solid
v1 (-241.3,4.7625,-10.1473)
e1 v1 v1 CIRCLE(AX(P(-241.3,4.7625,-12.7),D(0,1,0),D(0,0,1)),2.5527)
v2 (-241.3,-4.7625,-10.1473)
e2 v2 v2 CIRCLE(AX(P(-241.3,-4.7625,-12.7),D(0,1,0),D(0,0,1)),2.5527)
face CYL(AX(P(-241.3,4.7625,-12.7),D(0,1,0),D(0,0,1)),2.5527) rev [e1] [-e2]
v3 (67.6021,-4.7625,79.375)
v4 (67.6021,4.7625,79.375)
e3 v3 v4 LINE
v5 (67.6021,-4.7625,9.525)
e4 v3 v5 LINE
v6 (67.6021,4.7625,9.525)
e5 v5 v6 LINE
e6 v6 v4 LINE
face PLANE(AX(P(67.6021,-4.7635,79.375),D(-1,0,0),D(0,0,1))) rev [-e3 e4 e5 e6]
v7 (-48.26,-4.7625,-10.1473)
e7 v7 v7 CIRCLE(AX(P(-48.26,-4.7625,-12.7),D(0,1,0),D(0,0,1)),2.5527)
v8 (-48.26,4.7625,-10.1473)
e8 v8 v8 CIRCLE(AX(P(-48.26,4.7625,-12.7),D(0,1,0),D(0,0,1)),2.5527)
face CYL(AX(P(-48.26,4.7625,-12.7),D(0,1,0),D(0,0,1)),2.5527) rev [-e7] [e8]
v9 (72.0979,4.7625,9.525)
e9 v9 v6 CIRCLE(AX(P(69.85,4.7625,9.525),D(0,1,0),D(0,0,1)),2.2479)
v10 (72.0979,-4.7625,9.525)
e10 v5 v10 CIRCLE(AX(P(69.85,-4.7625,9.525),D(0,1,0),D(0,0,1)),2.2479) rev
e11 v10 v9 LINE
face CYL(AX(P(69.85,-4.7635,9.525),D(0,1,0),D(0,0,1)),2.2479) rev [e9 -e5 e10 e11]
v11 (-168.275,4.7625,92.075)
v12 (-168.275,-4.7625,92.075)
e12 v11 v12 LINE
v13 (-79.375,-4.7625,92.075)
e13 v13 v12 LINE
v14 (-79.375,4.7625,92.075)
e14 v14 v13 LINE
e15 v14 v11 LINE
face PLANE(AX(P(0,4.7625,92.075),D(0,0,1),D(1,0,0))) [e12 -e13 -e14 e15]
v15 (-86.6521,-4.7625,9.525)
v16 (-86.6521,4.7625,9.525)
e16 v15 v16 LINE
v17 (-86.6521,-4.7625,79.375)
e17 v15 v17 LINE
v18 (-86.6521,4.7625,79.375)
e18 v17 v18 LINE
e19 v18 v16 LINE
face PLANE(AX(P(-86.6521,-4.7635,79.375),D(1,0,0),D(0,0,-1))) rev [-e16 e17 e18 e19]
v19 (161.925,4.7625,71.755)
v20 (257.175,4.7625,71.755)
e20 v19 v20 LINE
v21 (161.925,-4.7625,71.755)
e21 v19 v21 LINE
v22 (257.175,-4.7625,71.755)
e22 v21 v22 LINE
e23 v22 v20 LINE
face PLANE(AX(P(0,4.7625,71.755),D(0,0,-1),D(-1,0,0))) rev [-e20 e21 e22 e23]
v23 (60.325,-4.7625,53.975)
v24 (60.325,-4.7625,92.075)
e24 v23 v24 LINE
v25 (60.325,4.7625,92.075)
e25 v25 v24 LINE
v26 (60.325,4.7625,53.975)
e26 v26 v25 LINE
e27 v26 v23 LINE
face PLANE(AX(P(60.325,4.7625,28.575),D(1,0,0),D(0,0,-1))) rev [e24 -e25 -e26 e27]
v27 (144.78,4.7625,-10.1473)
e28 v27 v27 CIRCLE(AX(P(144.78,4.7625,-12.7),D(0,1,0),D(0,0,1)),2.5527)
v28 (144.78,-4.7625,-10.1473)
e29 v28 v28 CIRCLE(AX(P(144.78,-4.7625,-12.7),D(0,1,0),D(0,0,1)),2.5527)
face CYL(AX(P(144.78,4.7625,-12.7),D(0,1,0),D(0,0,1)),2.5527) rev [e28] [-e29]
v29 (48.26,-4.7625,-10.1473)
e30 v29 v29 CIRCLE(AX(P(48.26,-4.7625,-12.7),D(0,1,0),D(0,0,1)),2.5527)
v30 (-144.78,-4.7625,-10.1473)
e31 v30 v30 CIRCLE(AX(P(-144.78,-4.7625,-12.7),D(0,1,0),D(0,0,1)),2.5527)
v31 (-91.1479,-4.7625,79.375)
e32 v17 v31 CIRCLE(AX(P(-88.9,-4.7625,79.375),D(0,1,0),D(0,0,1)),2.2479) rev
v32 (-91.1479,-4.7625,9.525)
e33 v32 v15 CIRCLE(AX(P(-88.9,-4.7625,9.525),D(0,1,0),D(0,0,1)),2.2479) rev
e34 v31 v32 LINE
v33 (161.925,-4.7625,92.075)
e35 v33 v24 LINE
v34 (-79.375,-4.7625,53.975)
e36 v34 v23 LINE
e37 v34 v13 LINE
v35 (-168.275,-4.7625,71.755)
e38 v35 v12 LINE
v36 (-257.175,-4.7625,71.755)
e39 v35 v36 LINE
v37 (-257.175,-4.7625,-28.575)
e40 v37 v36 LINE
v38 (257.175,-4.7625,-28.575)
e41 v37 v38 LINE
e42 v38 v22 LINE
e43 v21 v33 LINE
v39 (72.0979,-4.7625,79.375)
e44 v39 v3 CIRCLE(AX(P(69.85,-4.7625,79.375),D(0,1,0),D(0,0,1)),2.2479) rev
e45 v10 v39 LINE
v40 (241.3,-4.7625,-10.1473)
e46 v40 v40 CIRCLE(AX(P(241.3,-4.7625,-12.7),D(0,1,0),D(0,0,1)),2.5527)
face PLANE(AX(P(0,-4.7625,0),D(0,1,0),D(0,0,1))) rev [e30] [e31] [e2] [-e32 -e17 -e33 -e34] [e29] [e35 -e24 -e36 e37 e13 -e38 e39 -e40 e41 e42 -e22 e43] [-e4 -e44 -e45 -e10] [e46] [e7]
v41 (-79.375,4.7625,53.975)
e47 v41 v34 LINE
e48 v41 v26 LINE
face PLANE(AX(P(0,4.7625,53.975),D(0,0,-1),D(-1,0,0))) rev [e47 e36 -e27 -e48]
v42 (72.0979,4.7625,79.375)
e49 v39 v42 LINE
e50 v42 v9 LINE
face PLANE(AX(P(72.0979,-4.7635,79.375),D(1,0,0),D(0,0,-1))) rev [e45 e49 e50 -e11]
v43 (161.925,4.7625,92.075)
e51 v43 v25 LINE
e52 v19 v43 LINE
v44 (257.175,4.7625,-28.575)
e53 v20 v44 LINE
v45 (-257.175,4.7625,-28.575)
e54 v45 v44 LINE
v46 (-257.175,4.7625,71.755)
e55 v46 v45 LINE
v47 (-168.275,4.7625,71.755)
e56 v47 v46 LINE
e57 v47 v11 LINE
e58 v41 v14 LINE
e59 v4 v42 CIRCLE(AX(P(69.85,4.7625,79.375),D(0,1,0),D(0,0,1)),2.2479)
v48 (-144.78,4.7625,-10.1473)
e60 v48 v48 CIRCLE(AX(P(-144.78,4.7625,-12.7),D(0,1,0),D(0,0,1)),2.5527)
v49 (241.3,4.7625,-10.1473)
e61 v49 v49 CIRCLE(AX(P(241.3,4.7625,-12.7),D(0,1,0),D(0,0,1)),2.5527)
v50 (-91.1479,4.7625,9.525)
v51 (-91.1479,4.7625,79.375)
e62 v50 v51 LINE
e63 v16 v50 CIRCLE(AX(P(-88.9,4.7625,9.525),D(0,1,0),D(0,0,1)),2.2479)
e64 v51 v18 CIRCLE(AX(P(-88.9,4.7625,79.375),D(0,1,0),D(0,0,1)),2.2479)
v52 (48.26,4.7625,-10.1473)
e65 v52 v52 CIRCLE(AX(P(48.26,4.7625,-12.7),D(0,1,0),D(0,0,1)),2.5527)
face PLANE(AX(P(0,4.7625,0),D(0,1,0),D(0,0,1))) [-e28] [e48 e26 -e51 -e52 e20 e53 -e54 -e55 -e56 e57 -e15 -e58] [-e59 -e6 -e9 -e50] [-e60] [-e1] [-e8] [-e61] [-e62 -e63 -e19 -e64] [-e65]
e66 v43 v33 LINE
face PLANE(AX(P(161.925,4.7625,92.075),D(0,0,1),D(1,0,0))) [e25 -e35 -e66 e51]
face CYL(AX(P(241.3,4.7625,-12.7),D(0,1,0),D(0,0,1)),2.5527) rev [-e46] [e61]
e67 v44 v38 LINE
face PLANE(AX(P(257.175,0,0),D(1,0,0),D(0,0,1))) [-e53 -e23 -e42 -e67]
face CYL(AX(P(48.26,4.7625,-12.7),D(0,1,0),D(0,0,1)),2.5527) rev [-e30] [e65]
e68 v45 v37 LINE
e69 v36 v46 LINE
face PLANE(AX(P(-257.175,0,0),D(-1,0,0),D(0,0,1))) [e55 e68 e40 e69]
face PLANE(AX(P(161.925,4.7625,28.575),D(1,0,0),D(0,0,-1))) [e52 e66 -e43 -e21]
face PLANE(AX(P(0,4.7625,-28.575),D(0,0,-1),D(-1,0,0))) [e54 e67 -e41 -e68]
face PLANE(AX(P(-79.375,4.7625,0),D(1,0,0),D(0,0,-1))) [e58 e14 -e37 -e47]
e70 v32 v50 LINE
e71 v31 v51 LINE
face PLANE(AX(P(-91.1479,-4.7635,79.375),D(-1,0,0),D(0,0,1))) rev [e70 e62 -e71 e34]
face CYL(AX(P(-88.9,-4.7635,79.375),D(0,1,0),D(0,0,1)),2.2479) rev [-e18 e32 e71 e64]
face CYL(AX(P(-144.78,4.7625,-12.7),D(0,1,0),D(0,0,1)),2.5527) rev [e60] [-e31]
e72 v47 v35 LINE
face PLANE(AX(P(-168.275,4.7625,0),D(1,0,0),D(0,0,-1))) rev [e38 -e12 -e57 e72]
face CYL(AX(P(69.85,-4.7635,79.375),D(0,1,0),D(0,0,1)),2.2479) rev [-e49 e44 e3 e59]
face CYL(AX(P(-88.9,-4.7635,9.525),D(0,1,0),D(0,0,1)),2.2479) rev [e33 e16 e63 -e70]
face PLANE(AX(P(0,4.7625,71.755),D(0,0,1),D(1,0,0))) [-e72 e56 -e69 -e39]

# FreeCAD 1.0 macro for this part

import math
import FreeCAD as App
import Part
import Sketcher
from FreeCAD import Vector
Q = App.Units.Quantity


def add_polygon(sketch, points):
    """Adds a closed chain of lines whose ends are joined by coincident constraints."""
    first, n = sketch.GeometryCount, len(points)
    for a, b in zip(points, points[1:] + points[:1]):
        sketch.addGeometry(Part.LineSegment(App.Vector(*a, 0), App.Vector(*b, 0)), False)
    for i in range(n):
        sketch.addConstraint(Sketcher.Constraint("Coincident", first + i, 2, first + (i + 1) % n, 1))

doc = App.newDocument("Part")
body = doc.addObject("PartDesign::Body", "Body")

sketch1 = body.newObject("Sketcher::SketchObject", "Sketch")
sketch1.AttachmentSupport = (doc.getObject("XZ_Plane"), [""])
sketch1.MapMode = "FlatFace"
add_polygon(sketch1, [(-251, -29), (-251, 29), (251, 29), (251, -29)])
sketch1.addConstraint(Sketcher.Constraint("Vertical", 0))
sketch1.addConstraint(Sketcher.Constraint("Horizontal", 1))
sketch1.addConstraint(Sketcher.Constraint("Vertical", 2))
sketch1.addConstraint(Sketcher.Constraint("Horizontal", 3))
sketch1.addConstraint(Sketcher.Constraint("Symmetric", 0, 2, 2, 2, -1, 1))
sketch1.addConstraint(Sketcher.Constraint("DistanceX", 1, 1, 1, 2, Q("19.75 in")))
sketch1.addConstraint(Sketcher.Constraint("DistanceY", 0, 1, 0, 2, Q("2.25 in")))
pad1 = body.newObject("PartDesign::Pad", "Pad")
pad1.Profile = sketch1
pad1.Length = Q("0.375 in")
pad1.Midplane = True

sketch2 = body.newObject("Sketcher::SketchObject", "Sketch001")
sketch2.AttachmentSupport = (doc.getObject("XZ_Plane"), [""])
sketch2.MapMode = "FlatFace"
add_polygon(sketch2, [(162, 92), (162, 72), (251, 72), (251, 29), (-251, 29), (-251, 72), (-168, 72), (-168, 92), (-79, 92), (-79, 54), (60, 54), (60, 92)])
sketch2.addConstraint(Sketcher.Constraint("Vertical", 0))
sketch2.addConstraint(Sketcher.Constraint("Horizontal", 1))
sketch2.addConstraint(Sketcher.Constraint("Vertical", 2))
sketch2.addConstraint(Sketcher.Constraint("Horizontal", 3))
sketch2.addConstraint(Sketcher.Constraint("Vertical", 4))
sketch2.addConstraint(Sketcher.Constraint("Horizontal", 5))
sketch2.addConstraint(Sketcher.Constraint("Vertical", 6))
sketch2.addConstraint(Sketcher.Constraint("Horizontal", 7))
sketch2.addConstraint(Sketcher.Constraint("Vertical", 8))
sketch2.addConstraint(Sketcher.Constraint("Horizontal", 9))
sketch2.addConstraint(Sketcher.Constraint("Vertical", 10))
sketch2.addConstraint(Sketcher.Constraint("Horizontal", 11))
sketch2.addConstraint(Sketcher.Constraint("Symmetric", 1, 2, 4, 2, -2))
sketch2.addConstraint(Sketcher.Constraint("Horizontal", 7, 2, 10, 2))
sketch2.addConstraint(Sketcher.Constraint("Equal", 1, 7))
sketch2.addConstraint(Sketcher.Constraint("DistanceX", 11, 1, 11, 2, Q("4 in")))
sketch2.addConstraint(Sketcher.Constraint("DistanceX", 1, 1, 1, 2, Q("3.5 in")))
sketch2.addConstraint(Sketcher.Constraint("DistanceX", 9, 1, 9, 2, Q("5.5 in")))
sketch2.addConstraint(Sketcher.Constraint("DistanceY", 0, 2, 0, 1, Q("0.8 in")))
sketch2.addConstraint(Sketcher.Constraint("DistanceY", 2, 2, 2, 1, Q("1.7 in")))
sketch2.addConstraint(Sketcher.Constraint("DistanceY", 8, 2, 8, 1, Q("1.5 in")))
sketch2.addConstraint(Sketcher.Constraint("DistanceX", 3, 2, 3, 1, Q("19.75 in")))
sketch2.addConstraint(Sketcher.Constraint("DistanceY", -1, 1, 0, 2, Q("2.825 in")))
pad2 = body.newObject("PartDesign::Pad", "Pad001")
pad2.Profile = sketch2
pad2.Length = Q("0.375 in")
pad2.Midplane = True

sketch3 = body.newObject("Sketcher::SketchObject", "Sketch002")
sketch3.AttachmentSupport = (doc.getObject("YZ_Plane"), [""])
sketch3.MapMode = "FlatFace"
sketch3.AttachmentOffset = App.Placement(Vector(0, 0, -9.875 * 25.4), App.Rotation())
add_polygon(sketch3, [(5, -29), (-5, -29), (-5, 72), (5, 72)])
sketch3.addConstraint(Sketcher.Constraint("Horizontal", 0))
sketch3.addConstraint(Sketcher.Constraint("Vertical", 1))
sketch3.addConstraint(Sketcher.Constraint("Horizontal", 2))
sketch3.addConstraint(Sketcher.Constraint("Vertical", 3))
sketch3.addConstraint(Sketcher.Constraint("DistanceY", 1, 1, 1, 2, Q("3.95 in")))
sketch3.addConstraint(Sketcher.Constraint("DistanceX", 0, 2, 0, 1, Q("0.375 in")))
sketch3.addConstraint(Sketcher.Constraint("DistanceX", 0, 2, -1, 1, Q("0.1875 in")))
sketch3.addConstraint(Sketcher.Constraint("DistanceY", 0, 2, -1, 1, Q("1.125 in")))
pad3 = body.newObject("PartDesign::Pad", "Pad002")
pad3.Profile = sketch3
pad3.Length = Q("0.25 in")
pad3.Reversed = True
doc.recompute()

mirrored = body.newObject("PartDesign::Mirrored", "Mirrored")
mirrored.Originals = [pad3]
mirrored.MirrorPlane = (doc.getObject("YZ_Plane"), [""])
body.Tip = mirrored

sketch4 = body.newObject("Sketcher::SketchObject", "Sketch003")
sketch4.AttachmentSupport = (doc.getObject("XZ_Plane"), [""])
sketch4.MapMode = "FlatFace"
sketch4.AttachmentOffset = App.Placement(Vector(0, 0, -0.1875 * 25.4), App.Rotation())
sketch4.addGeometry(Part.Circle(Vector(241.3, -12.7, 0), Vector(0, 0, 1), 2.6), False)
sketch4.addConstraint(Sketcher.Constraint("Diameter", 0, Q("0.201 in")))
sketch4.addConstraint(Sketcher.Constraint("DistanceX", -1, 1, 0, 3, Q("9.5 in")))
sketch4.addConstraint(Sketcher.Constraint("DistanceY", 0, 3, -1, 1, Q("0.5 in")))
doc.recompute()
hole = body.newObject("PartDesign::Hole", "Hole")
hole.Profile = sketch4
hole.ThreadType = "None"
hole.Diameter = Q("0.201 in")
hole.DepthType = "ThroughAll"
hole.Reversed = True
doc.recompute()

linearpattern = body.newObject("PartDesign::LinearPattern", "LinearPattern")
linearpattern.Originals = [hole]
linearpattern.Direction = (doc.getObject("X_Axis"), [""])
linearpattern.Mode = "offset"
linearpattern.Offset = Q("3.8 in")
linearpattern.Occurrences = 6
linearpattern.Reversed = True
body.Tip = linearpattern

sketch5 = body.newObject("Sketcher::SketchObject", "Sketch004")
sketch5.AttachmentSupport = (doc.getObject("XZ_Plane"), [""])
sketch5.MapMode = "FlatFace"
sketch5.AttachmentOffset = App.Placement(Vector(0, 0, -0.1875 * 25.4), App.Rotation())
sketch5.addGeometry(Part.LineSegment(Vector(-91.1, 9.5, 0), Vector(-91.1, 79.4, 0)), False)
sketch5.addGeometry(Part.ArcOfCircle(Part.Circle(Vector(-88.9, 79.4, 0), Vector(0, 0, 1), 2.2), math.radians(0), math.radians(180)), False)
sketch5.addGeometry(Part.LineSegment(Vector(-86.7, 79.4, 0), Vector(-86.7, 9.5, 0)), False)
sketch5.addGeometry(Part.ArcOfCircle(Part.Circle(Vector(-88.9, 9.5, 0), Vector(0, 0, 1), 2.2), math.radians(180), math.radians(360)), False)
sketch5.addConstraint(Sketcher.Constraint("Tangent", 0, 2, 1, 2))
sketch5.addConstraint(Sketcher.Constraint("Tangent", 1, 1, 2, 1))
sketch5.addConstraint(Sketcher.Constraint("Tangent", 2, 2, 3, 2))
sketch5.addConstraint(Sketcher.Constraint("Tangent", 3, 1, 0, 1))
sketch5.addConstraint(Sketcher.Constraint("Vertical", 0))
sketch5.addConstraint(Sketcher.Constraint("Vertical", 2))
sketch5.addConstraint(Sketcher.Constraint("DistanceY", 0, 1, 0, 2, Q("2.75 in")))
sketch5.addConstraint(Sketcher.Constraint("DistanceX", 1, 3, -1, 1, Q("3.5 in")))
sketch5.addConstraint(Sketcher.Constraint("Radius", 1, Q("0.0885 in")))
sketch5.addConstraint(Sketcher.Constraint("DistanceY", -1, 1, 1, 3, Q("3.125 in")))
pocket1 = body.newObject("PartDesign::Pocket", "Pocket")
pocket1.Profile = sketch5
pocket1.Type = "UpToFirst"
pocket1.Reversed = True

sketch6 = body.newObject("Sketcher::SketchObject", "Sketch005")
sketch6.AttachmentSupport = (doc.getObject("XZ_Plane"), [""])
sketch6.MapMode = "FlatFace"
sketch6.AttachmentOffset = App.Placement(Vector(0, 0, -0.1875 * 25.4), App.Rotation())
sketch6.addGeometry(Part.LineSegment(Vector(67.6, 9.5, 0), Vector(67.6, 79.4, 0)), False)
sketch6.addGeometry(Part.ArcOfCircle(Part.Circle(Vector(69.8, 79.4, 0), Vector(0, 0, 1), 2.2), math.radians(0), math.radians(180)), False)
sketch6.addGeometry(Part.LineSegment(Vector(72.1, 79.4, 0), Vector(72.1, 9.5, 0)), False)
sketch6.addGeometry(Part.ArcOfCircle(Part.Circle(Vector(69.8, 9.5, 0), Vector(0, 0, 1), 2.2), math.radians(180), math.radians(360)), False)
sketch6.addConstraint(Sketcher.Constraint("Tangent", 0, 2, 1, 2))
sketch6.addConstraint(Sketcher.Constraint("Tangent", 1, 1, 2, 1))
sketch6.addConstraint(Sketcher.Constraint("Tangent", 2, 2, 3, 2))
sketch6.addConstraint(Sketcher.Constraint("Tangent", 3, 1, 0, 1))
sketch6.addConstraint(Sketcher.Constraint("Vertical", 0))
sketch6.addConstraint(Sketcher.Constraint("Vertical", 2))
sketch6.addConstraint(Sketcher.Constraint("DistanceY", 0, 1, 0, 2, Q("2.75 in")))
sketch6.addConstraint(Sketcher.Constraint("Radius", 1, Q("0.0885 in")))
sketch6.addConstraint(Sketcher.Constraint("DistanceX", -1, 1, 1, 3, Q("2.75 in")))
sketch6.addConstraint(Sketcher.Constraint("DistanceY", -1, 1, 1, 3, Q("3.125 in")))
pocket2 = body.newObject("PartDesign::Pocket", "Pocket001")
pocket2.Profile = sketch6
pocket2.Type = "UpToFirst"
pocket2.Reversed = True

doc.recompute()
